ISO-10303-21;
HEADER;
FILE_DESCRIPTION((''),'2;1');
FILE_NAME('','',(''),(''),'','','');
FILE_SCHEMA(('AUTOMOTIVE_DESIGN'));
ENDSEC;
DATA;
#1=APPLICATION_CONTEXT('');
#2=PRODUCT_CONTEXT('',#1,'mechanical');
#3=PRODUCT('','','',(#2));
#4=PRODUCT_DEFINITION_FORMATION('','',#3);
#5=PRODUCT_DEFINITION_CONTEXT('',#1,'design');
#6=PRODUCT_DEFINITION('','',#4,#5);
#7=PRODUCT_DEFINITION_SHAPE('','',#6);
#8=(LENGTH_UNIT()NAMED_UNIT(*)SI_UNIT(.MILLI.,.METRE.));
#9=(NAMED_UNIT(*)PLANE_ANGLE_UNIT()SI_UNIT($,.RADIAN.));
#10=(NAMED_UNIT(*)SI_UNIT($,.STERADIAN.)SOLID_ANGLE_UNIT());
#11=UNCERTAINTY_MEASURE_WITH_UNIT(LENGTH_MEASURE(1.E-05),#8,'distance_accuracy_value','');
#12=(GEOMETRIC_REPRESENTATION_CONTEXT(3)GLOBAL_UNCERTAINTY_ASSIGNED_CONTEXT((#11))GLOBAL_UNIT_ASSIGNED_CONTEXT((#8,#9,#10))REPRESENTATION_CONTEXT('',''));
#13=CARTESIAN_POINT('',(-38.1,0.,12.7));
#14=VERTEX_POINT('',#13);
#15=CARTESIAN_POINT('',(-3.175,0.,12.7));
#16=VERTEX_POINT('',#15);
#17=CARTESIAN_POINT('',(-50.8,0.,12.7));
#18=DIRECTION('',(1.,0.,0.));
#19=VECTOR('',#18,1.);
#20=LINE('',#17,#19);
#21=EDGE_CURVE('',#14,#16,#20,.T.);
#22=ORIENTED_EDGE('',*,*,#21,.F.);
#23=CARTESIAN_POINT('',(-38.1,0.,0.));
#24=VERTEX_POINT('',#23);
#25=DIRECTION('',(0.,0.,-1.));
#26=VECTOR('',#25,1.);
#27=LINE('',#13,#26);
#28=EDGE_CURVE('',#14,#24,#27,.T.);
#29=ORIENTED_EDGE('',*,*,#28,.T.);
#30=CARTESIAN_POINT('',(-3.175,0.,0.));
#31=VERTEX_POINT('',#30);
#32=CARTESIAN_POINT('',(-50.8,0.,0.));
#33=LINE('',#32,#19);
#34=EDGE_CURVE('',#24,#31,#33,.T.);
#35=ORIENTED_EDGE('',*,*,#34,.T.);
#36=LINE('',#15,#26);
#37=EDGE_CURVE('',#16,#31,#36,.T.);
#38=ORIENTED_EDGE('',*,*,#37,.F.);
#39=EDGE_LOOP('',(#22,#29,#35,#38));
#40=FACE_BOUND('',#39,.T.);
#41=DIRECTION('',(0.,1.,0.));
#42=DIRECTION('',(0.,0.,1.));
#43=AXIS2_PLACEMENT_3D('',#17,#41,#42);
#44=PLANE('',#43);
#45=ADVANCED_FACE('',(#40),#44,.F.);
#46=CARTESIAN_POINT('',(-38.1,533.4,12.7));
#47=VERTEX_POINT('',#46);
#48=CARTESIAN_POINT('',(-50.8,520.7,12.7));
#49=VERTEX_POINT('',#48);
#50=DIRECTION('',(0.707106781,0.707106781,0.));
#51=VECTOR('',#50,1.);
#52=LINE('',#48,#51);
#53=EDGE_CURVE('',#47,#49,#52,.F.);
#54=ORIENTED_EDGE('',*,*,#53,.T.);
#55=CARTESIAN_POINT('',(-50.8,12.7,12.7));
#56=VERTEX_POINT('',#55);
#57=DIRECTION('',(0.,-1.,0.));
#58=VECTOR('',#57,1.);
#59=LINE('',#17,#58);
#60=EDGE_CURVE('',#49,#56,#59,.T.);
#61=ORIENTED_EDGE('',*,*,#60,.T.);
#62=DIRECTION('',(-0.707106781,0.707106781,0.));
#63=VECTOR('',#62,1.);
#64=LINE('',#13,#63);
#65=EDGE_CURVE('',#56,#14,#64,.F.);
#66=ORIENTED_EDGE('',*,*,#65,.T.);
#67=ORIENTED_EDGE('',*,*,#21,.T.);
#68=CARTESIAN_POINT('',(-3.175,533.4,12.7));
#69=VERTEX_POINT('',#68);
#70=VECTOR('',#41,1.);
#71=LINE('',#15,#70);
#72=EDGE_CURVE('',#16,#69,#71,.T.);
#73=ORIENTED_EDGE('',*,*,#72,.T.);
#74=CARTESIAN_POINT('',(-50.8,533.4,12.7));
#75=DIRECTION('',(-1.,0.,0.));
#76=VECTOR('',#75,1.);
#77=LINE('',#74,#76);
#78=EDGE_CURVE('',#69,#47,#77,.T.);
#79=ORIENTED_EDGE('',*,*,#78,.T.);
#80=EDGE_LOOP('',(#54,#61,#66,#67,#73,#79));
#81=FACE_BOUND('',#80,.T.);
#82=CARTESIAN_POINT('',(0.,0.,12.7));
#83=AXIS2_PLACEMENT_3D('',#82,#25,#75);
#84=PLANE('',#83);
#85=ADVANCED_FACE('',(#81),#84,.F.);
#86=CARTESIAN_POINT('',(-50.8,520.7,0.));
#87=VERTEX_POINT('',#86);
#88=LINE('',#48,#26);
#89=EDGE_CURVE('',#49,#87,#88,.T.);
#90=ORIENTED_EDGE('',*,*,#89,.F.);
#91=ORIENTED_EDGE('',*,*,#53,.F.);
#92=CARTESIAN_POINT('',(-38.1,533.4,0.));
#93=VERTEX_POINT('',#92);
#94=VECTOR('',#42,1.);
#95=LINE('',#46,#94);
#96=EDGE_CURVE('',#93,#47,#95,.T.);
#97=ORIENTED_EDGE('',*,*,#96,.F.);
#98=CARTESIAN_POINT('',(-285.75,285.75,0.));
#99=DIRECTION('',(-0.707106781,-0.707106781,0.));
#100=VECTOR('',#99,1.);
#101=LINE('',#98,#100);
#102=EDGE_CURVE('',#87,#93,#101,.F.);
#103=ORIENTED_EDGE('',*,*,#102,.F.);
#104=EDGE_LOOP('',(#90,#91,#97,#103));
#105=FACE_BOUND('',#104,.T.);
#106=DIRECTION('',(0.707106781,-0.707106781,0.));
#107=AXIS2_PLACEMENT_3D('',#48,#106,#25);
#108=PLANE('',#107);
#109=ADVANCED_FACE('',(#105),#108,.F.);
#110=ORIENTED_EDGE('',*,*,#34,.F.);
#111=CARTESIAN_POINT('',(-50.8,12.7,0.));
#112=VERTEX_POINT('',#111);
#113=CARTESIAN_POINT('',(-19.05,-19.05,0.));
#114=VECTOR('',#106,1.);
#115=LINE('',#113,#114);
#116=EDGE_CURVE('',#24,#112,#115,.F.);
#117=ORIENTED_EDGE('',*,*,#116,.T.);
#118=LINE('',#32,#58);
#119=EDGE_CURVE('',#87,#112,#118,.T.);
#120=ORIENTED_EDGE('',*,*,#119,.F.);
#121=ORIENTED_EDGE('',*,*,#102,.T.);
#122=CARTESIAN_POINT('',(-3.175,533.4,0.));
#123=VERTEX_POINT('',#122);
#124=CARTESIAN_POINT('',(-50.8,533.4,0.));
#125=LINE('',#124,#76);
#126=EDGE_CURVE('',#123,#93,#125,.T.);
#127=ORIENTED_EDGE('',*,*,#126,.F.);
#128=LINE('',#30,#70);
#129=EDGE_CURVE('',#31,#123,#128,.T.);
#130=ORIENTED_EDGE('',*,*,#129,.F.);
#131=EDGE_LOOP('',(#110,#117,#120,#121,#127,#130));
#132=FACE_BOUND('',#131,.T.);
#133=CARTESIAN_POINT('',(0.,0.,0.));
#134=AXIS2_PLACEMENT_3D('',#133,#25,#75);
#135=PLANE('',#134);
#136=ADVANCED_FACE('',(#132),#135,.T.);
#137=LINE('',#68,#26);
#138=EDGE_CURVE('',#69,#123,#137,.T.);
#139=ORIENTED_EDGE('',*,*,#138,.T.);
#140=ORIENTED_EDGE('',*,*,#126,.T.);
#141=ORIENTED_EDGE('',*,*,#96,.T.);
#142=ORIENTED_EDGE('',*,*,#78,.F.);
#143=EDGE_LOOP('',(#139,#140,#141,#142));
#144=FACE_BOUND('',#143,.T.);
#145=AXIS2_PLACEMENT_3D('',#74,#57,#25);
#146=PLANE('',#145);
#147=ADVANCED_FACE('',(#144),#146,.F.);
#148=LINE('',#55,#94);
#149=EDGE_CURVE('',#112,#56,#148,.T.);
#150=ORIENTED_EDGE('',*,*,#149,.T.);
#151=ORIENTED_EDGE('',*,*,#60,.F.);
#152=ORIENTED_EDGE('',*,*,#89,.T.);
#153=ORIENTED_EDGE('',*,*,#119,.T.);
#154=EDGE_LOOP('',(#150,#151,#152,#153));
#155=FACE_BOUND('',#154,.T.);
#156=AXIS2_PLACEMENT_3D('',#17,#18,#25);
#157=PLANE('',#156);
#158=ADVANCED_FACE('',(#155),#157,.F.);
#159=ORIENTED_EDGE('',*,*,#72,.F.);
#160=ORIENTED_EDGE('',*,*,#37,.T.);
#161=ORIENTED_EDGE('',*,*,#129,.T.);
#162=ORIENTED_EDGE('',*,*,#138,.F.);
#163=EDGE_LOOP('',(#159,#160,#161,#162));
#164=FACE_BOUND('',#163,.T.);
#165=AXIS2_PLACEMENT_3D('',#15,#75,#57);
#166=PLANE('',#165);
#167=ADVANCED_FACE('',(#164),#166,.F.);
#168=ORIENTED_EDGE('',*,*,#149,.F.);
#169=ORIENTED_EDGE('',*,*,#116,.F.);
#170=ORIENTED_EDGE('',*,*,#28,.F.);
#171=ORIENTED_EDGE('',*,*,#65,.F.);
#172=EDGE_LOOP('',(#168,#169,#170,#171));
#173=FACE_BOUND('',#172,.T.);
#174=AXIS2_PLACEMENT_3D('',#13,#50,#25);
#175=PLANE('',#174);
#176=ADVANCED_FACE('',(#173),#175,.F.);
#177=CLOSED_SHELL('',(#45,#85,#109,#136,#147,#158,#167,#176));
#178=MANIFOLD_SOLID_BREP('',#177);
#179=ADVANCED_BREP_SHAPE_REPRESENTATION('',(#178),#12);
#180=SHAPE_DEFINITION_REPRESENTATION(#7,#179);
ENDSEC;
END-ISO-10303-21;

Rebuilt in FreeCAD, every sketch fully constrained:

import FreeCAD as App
import Part
import Sketcher
Q = App.Units.Quantity


def edges_at(feature, points):
    """Names of the edges that pass closest to the given points."""
    edges = feature.Shape.Edges
    near = lambda p: min(range(len(edges)), key=lambda i: edges[i].distToShape(Part.Vertex(*p))[0])
    return sorted({f"Edge{near(p) + 1}" for p in points})


def add_polygon(sketch, points):
    """Adds a closed chain of lines whose ends are joined by coincident constraints."""
    first, n = sketch.GeometryCount, len(points)
    for a, b in zip(points, points[1:] + points[:1]):
        sketch.addGeometry(Part.LineSegment(App.Vector(*a, 0), App.Vector(*b, 0)), False)
    for i in range(n):
        sketch.addConstraint(Sketcher.Constraint("Coincident", first + i, 2, first + (i + 1) % n, 1))

doc = App.newDocument("Part")
body = doc.addObject("PartDesign::Body", "Body")

# Sketch on XY plane
sketch1 = body.newObject("Sketcher::SketchObject", "Sketch")
sketch1.AttachmentSupport = (doc.getObject("XY_Plane"), [""])
sketch1.MapMode = "FlatFace"
add_polygon(sketch1, [(-51, 533), (-51, 0), (-3, 0), (-3, 533)])  # lines 0-3
sketch1.addConstraint([
    Sketcher.Constraint("Vertical", 0),
    Sketcher.Constraint("Horizontal", 1),
    Sketcher.Constraint("Vertical", 2),
    Sketcher.Constraint("Horizontal", 3),
    Sketcher.Constraint("PointOnObject", 0, 2, -1),
    Sketcher.Constraint("DistanceY", 0, 2, 0, 1, Q("21 in")),
    Sketcher.Constraint("DistanceX", 0, 2, -1, 1, Q("2 in")),
    Sketcher.Constraint("DistanceX", 1, 1, 1, 2, Q("1.875 in")),
])
pad1 = body.newObject("PartDesign::Pad", "Pad")
pad1.Profile = sketch1
pad1.Length = Q("0.5 in")
doc.recompute()

chamfer = body.newObject("PartDesign::Chamfer", "Chamfer")
chamfer.Base = (pad1, edges_at(pad1, [(-50.8, 533.4, 6.35), (-50.8, 0, 6.35)]))
chamfer.Size = Q("0.5 in")

doc.recompute()
